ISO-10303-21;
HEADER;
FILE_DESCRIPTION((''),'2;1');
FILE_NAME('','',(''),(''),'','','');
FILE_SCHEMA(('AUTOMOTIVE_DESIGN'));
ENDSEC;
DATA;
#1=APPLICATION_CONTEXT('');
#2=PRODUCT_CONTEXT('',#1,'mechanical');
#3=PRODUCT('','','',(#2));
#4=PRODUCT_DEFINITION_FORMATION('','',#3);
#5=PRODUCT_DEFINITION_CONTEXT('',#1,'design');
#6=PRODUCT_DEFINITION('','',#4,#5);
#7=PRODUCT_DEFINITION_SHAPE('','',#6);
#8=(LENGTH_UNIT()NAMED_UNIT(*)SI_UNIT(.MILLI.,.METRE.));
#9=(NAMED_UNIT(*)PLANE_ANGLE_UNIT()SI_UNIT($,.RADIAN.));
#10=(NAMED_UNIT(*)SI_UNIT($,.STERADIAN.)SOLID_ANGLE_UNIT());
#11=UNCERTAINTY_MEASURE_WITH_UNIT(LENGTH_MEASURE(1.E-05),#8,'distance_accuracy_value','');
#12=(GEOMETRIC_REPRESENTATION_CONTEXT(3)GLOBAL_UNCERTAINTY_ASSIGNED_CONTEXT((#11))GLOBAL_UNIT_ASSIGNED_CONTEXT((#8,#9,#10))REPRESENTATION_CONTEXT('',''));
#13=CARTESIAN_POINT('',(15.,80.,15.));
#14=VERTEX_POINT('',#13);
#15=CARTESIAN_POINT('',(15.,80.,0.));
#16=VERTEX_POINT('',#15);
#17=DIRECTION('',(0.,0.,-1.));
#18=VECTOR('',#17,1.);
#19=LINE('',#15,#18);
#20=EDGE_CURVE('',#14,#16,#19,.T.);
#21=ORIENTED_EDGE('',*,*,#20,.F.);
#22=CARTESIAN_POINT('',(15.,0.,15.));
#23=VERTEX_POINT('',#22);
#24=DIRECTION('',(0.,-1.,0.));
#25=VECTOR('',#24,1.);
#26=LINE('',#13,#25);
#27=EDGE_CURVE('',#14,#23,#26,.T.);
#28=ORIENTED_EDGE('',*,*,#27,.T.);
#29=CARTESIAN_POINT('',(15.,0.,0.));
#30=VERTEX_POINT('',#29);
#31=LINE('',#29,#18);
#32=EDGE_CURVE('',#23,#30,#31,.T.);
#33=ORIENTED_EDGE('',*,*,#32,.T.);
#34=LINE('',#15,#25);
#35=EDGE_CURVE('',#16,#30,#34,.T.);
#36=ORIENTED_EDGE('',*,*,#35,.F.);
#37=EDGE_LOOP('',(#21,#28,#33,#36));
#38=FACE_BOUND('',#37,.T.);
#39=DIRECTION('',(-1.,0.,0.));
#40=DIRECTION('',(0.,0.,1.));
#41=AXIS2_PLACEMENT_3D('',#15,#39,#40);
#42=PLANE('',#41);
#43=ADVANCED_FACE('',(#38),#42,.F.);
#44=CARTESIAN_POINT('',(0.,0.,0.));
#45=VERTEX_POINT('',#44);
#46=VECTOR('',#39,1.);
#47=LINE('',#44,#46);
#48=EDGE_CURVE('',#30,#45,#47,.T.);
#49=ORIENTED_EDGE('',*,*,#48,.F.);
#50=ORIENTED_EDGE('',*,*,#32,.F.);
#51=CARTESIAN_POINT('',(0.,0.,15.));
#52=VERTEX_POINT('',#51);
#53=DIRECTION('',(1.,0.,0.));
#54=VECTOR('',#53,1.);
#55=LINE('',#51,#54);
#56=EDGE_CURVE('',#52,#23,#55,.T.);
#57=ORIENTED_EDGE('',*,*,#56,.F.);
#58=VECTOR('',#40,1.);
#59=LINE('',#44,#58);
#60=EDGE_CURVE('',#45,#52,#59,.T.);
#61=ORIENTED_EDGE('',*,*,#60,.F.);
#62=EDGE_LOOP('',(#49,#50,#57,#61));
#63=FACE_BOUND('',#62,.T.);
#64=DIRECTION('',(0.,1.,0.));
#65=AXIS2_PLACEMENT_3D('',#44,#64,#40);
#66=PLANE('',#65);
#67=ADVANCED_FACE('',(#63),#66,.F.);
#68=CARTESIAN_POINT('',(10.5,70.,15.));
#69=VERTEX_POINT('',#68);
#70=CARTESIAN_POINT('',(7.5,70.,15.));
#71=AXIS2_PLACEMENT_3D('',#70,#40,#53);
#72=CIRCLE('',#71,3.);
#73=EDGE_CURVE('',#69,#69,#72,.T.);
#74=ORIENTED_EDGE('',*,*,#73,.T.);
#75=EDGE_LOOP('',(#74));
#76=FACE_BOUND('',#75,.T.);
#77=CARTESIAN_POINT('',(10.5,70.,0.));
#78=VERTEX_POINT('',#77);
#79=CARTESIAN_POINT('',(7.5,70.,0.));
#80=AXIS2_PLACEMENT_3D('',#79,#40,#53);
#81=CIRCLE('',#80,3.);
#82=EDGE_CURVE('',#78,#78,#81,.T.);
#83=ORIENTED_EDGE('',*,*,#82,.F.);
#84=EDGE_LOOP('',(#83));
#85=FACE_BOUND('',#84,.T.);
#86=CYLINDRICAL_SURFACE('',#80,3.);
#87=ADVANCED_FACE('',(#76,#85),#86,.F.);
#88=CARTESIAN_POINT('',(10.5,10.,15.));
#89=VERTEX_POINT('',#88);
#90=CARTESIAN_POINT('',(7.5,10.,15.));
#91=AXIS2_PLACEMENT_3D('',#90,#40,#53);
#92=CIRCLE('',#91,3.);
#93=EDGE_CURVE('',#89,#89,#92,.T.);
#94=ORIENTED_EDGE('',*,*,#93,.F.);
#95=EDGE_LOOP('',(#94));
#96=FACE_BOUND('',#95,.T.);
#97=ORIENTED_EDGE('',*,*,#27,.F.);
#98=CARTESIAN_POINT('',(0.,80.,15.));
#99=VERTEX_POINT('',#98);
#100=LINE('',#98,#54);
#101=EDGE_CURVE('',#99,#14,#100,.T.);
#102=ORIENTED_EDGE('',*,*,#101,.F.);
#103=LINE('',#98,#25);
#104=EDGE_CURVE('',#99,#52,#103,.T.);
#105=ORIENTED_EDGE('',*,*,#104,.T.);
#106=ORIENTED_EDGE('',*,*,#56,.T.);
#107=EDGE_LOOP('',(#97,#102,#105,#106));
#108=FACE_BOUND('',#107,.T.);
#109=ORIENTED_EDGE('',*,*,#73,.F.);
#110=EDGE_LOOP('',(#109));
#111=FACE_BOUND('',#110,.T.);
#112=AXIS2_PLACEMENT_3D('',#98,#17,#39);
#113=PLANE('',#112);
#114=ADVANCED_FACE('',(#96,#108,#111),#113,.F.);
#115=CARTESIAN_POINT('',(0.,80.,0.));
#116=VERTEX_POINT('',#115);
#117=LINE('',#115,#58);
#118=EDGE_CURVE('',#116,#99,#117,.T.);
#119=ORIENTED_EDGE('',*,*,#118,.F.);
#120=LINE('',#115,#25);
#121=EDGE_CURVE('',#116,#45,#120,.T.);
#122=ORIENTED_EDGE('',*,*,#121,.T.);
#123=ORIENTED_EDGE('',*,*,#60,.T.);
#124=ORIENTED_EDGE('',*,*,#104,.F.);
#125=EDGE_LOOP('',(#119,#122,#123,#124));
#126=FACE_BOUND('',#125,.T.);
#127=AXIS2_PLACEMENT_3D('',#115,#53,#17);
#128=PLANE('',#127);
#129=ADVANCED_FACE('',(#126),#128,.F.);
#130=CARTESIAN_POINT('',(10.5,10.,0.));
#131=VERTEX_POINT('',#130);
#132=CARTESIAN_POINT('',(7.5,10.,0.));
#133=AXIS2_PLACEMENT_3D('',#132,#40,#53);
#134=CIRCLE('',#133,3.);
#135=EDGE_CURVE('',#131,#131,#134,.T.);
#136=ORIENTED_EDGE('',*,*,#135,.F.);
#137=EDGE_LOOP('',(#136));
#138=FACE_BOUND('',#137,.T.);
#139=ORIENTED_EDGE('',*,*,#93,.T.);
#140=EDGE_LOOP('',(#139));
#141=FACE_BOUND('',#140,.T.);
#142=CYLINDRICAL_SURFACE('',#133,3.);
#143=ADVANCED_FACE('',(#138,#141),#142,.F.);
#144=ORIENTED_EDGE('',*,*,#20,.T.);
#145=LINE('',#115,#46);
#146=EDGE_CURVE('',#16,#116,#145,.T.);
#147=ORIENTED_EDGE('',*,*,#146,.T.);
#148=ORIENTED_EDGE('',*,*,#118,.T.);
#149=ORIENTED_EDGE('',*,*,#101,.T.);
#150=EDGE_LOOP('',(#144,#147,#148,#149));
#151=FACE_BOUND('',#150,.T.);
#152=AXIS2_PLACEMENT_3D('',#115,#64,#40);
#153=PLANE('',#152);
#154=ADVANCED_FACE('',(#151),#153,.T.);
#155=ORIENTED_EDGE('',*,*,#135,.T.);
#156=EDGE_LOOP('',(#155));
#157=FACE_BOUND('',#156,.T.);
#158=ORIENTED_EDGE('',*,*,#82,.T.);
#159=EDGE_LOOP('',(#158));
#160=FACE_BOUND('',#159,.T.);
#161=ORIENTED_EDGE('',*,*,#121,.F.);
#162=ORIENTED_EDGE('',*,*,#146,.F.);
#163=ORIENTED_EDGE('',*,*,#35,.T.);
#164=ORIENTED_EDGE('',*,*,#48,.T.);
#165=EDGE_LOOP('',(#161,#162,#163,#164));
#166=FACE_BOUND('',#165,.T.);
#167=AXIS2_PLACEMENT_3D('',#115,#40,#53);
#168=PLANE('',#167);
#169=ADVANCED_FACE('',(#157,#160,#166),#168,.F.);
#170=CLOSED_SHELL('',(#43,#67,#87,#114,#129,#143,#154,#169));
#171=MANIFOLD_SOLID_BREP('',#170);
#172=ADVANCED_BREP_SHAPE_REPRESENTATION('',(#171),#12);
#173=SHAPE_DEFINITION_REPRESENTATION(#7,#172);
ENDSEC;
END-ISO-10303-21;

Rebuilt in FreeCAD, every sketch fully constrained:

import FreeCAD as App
import Part
import Sketcher
from FreeCAD import Vector
Q = App.Units.Quantity


def add_polygon(sketch, points):
    """Adds a closed chain of lines whose ends are joined by coincident constraints."""
    first, n = sketch.GeometryCount, len(points)
    for a, b in zip(points, points[1:] + points[:1]):
        sketch.addGeometry(Part.LineSegment(App.Vector(*a, 0), App.Vector(*b, 0)), False)
    for i in range(n):
        sketch.addConstraint(Sketcher.Constraint("Coincident", first + i, 2, first + (i + 1) % n, 1))

doc = App.newDocument("Part")
body = doc.addObject("PartDesign::Body", "Body")

# Sketch on XZ plane
sketch1 = body.newObject("Sketcher::SketchObject", "Sketch")
sketch1.AttachmentSupport = (doc.getObject("XZ_Plane"), [""])
sketch1.MapMode = "FlatFace"
add_polygon(sketch1, [(0, 0), (0, 15), (15, 15), (15, 0)])  # lines 0-3
sketch1.addConstraint([
    Sketcher.Constraint("Vertical", 0),
    Sketcher.Constraint("Horizontal", 1),
    Sketcher.Constraint("Vertical", 2),
    Sketcher.Constraint("Horizontal", 3),
    Sketcher.Constraint("Coincident", 3, 2, -1, 1),
    Sketcher.Constraint("Equal", 3, 0),
    Sketcher.Constraint("DistanceX", 1, 1, 1, 2, Q("15 mm")),
])
pad1 = body.newObject("PartDesign::Pad", "Pad")
pad1.Profile = sketch1
pad1.Length = 80
pad1.Reversed = True

# Sketch on XY plane
sketch2 = body.newObject("Sketcher::SketchObject", "Sketch001")
sketch2.AttachmentSupport = (doc.getObject("XY_Plane"), [""])
sketch2.MapMode = "FlatFace"
sketch2.AttachmentOffset = App.Placement(Vector(0, 0, 15), App.Rotation())
sketch2.addGeometry([
    Part.Circle(Vector(7.5, 70, 0), Vector(0, 0, 1), 3),
    Part.Circle(Vector(7.5, 10, 0), Vector(0, 0, 1), 3),
], False)
sketch2.addConstraint([
    Sketcher.Constraint("Equal", 0, 1),
    Sketcher.Constraint("Vertical", 0, 3, 1, 3),
    Sketcher.Constraint("Diameter", 0, Q("6 mm")),
    Sketcher.Constraint("DistanceY", -1, 1, 0, 3, Q("70 mm")),
    Sketcher.Constraint("DistanceY", -1, 1, 1, 3, Q("10 mm")),
    Sketcher.Constraint("DistanceX", -1, 1, 0, 3, Q("7.5 mm")),
])
pocket1 = body.newObject("PartDesign::Pocket", "Pocket")
pocket1.Profile = sketch2
pocket1.Type = "ThroughAll"

doc.recompute()
